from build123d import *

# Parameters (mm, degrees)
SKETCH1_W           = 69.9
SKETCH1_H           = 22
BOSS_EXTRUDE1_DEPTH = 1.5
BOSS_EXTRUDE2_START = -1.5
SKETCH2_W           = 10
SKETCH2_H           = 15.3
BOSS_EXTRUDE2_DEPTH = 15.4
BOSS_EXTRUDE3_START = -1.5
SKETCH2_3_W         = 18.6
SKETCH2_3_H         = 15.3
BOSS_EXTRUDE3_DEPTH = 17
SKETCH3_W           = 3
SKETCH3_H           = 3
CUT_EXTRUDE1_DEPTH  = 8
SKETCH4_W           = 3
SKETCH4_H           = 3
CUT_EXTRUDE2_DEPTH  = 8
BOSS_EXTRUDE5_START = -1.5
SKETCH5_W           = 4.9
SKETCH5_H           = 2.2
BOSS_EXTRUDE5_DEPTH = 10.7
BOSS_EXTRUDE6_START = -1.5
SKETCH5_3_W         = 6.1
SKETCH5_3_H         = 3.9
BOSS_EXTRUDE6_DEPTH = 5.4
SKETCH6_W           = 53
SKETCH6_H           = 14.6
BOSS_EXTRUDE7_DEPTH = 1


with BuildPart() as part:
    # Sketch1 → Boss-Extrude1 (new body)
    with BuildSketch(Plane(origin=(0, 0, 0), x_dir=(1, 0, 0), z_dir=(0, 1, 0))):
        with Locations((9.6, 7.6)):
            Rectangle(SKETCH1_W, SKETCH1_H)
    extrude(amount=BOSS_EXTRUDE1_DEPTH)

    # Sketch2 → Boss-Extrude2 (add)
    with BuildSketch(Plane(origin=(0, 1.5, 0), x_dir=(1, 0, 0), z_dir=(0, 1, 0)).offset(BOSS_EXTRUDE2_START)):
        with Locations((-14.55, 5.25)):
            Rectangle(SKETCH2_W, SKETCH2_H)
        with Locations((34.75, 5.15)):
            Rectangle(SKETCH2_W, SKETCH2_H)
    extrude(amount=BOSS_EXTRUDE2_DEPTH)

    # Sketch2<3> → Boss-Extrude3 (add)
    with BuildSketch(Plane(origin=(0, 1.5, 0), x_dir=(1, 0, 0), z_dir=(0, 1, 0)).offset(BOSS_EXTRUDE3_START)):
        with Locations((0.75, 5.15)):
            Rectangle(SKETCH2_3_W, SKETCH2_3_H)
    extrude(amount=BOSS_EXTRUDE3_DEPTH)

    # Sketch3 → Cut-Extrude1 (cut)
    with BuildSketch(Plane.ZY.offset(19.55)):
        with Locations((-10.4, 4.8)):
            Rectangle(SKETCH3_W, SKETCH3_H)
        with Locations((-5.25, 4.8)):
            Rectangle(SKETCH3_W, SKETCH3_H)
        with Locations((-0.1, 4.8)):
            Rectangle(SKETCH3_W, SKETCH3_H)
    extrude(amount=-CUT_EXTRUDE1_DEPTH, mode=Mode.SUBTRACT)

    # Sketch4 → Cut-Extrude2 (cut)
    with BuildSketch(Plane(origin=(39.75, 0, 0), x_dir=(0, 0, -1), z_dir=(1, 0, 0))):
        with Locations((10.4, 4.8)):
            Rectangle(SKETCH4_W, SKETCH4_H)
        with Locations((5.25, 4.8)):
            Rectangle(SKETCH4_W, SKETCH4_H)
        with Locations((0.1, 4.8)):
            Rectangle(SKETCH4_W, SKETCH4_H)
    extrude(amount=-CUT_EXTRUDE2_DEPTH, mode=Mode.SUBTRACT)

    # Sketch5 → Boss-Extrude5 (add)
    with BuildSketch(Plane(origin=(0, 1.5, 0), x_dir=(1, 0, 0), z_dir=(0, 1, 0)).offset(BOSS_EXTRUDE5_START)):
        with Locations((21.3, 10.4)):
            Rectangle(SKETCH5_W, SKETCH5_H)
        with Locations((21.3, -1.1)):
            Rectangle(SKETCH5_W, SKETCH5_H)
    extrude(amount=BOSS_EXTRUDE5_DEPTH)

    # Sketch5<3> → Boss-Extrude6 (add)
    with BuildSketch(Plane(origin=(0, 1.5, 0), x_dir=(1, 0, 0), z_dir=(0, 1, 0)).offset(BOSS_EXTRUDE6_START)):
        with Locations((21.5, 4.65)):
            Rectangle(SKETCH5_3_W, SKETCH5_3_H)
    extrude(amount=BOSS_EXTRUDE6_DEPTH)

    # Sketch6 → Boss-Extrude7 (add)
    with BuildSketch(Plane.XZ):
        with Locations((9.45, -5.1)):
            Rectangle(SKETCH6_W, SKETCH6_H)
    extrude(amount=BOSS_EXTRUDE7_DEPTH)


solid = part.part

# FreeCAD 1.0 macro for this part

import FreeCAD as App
import Part
import Sketcher

V = App.Vector
Q = App.Units.Quantity


def add_polygon(sketch, points):
    """Adds a closed chain of lines whose ends are joined by coincident constraints."""
    first, n = sketch.GeometryCount, len(points)
    for a, b in zip(points, points[1:] + points[:1]):
        sketch.addGeometry(Part.LineSegment(App.Vector(*a, 0), App.Vector(*b, 0)), False)
    for i in range(n):
        sketch.addConstraint(Sketcher.Constraint("Coincident", first + i, 2, first + (i + 1) % n, 1))

doc = App.newDocument("Part")
body = doc.addObject("PartDesign::Body", "Body")

# Sketch on XZ plane
sketch1 = body.newObject("Sketcher::SketchObject", "Sketch")
sketch1.AttachmentSupport = (doc.getObject("XZ_Plane"), [""])
sketch1.MapMode = "FlatFace"
add_polygon(sketch1, [(-25.35, -18.6), (-25.35, 3.4), (44.55, 3.4), (44.55, -18.6)])  # lines 0-3
sketch1.addConstraint(Sketcher.Constraint("Vertical", 0))
sketch1.addConstraint(Sketcher.Constraint("Horizontal", 1))
sketch1.addConstraint(Sketcher.Constraint("Vertical", 2))
sketch1.addConstraint(Sketcher.Constraint("Horizontal", 3))
sketch1.addConstraint(Sketcher.Constraint("DistanceY", 0, 1, 0, 2, Q("22 mm")))
sketch1.addConstraint(Sketcher.Constraint("DistanceX", 1, 1, 1, 2, Q("69.9 mm")))
sketch1.addConstraint(Sketcher.Constraint("DistanceY", -1, 1, 0, 2, Q("3.4 mm")))
sketch1.addConstraint(Sketcher.Constraint("DistanceX", 0, 2, -1, 1, Q("25.35 mm")))
pad1 = body.newObject("PartDesign::Pad", "Pad")
pad1.Profile = sketch1
pad1.Length = 1.5
pad1.Reversed = True

# Sketch on XZ plane
sketch2 = body.newObject("Sketcher::SketchObject", "Sketch001")
sketch2.AttachmentSupport = (doc.getObject("XZ_Plane"), [""])
sketch2.MapMode = "FlatFace"
add_polygon(sketch2, [(-19.55, -12.9), (-19.55, 2.4), (-9.55, 2.4), (-9.55, -12.9)])  # lines 0-3
add_polygon(sketch2, [(29.75, -12.8), (29.75, 2.5), (39.75, 2.5), (39.75, -12.8)])  # lines 4-7
sketch2.addConstraint(Sketcher.Constraint("Vertical", 0))
sketch2.addConstraint(Sketcher.Constraint("Horizontal", 1))
sketch2.addConstraint(Sketcher.Constraint("Vertical", 2))
sketch2.addConstraint(Sketcher.Constraint("Horizontal", 3))
sketch2.addConstraint(Sketcher.Constraint("Vertical", 4))
sketch2.addConstraint(Sketcher.Constraint("Horizontal", 5))
sketch2.addConstraint(Sketcher.Constraint("Vertical", 6))
sketch2.addConstraint(Sketcher.Constraint("Horizontal", 7))
sketch2.addConstraint(Sketcher.Constraint("Equal", 3, 5))
sketch2.addConstraint(Sketcher.Constraint("Equal", 2, 4))
sketch2.addConstraint(Sketcher.Constraint("DistanceX", 1, 1, 1, 2, Q("10 mm")))
sketch2.addConstraint(Sketcher.Constraint("DistanceY", 0, 1, 0, 2, Q("15.3 mm")))
sketch2.addConstraint(Sketcher.Constraint("DistanceY", -1, 1, 0, 2, Q("2.4 mm")))
sketch2.addConstraint(Sketcher.Constraint("DistanceY", -1, 1, 4, 2, Q("2.5 mm")))
sketch2.addConstraint(Sketcher.Constraint("DistanceX", 1, 2, 4, 2, Q("39.3 mm")))
sketch2.addConstraint(Sketcher.Constraint("DistanceX", 0, 2, -1, 1, Q("19.55 mm")))
pad2 = body.newObject("PartDesign::Pad", "Pad001")
pad2.Profile = sketch2
pad2.Length = 15.4
pad2.Reversed = True

# Sketch on XZ plane
sketch3 = body.newObject("Sketcher::SketchObject", "Sketch002")
sketch3.AttachmentSupport = (doc.getObject("XZ_Plane"), [""])
sketch3.MapMode = "FlatFace"
add_polygon(sketch3, [(-8.55, -12.8), (-8.55, 2.5), (10.05, 2.5), (10.05, -12.8)])  # lines 0-3
sketch3.addConstraint(Sketcher.Constraint("Vertical", 0))
sketch3.addConstraint(Sketcher.Constraint("Horizontal", 1))
sketch3.addConstraint(Sketcher.Constraint("Vertical", 2))
sketch3.addConstraint(Sketcher.Constraint("Horizontal", 3))
sketch3.addConstraint(Sketcher.Constraint("DistanceX", 1, 1, 1, 2, Q("18.6 mm")))
sketch3.addConstraint(Sketcher.Constraint("DistanceY", 0, 1, 0, 2, Q("15.3 mm")))
sketch3.addConstraint(Sketcher.Constraint("DistanceY", -1, 1, 0, 2, Q("2.5 mm")))
sketch3.addConstraint(Sketcher.Constraint("DistanceX", 0, 2, -1, 1, Q("8.55 mm")))
pad3 = body.newObject("PartDesign::Pad", "Pad002")
pad3.Profile = sketch3
pad3.Length = 17
pad3.Reversed = True

# Sketch on YZ plane
sketch4 = body.newObject("Sketcher::SketchObject", "Sketch003")
sketch4.AttachmentSupport = (doc.getObject("YZ_Plane"), [""])
sketch4.MapMode = "FlatFace"
sketch4.AttachmentOffset = App.Placement(V(0, 0, -19.55), App.Rotation())
add_polygon(sketch4, [(6.3, -11.9), (3.3, -11.9), (3.3, -8.9), (6.3, -8.9)])  # lines 0-3
add_polygon(sketch4, [(6.3, -6.75), (3.3, -6.75), (3.3, -3.75), (6.3, -3.75)])  # lines 4-7
add_polygon(sketch4, [(6.3, -1.6), (3.3, -1.6), (3.3, 1.4), (6.3, 1.4)])  # lines 8-11
sketch4.addConstraint(Sketcher.Constraint("Horizontal", 0))
sketch4.addConstraint(Sketcher.Constraint("Vertical", 1))
sketch4.addConstraint(Sketcher.Constraint("Horizontal", 2))
sketch4.addConstraint(Sketcher.Constraint("Vertical", 3))
sketch4.addConstraint(Sketcher.Constraint("Horizontal", 4))
sketch4.addConstraint(Sketcher.Constraint("Vertical", 5))
sketch4.addConstraint(Sketcher.Constraint("Horizontal", 6))
sketch4.addConstraint(Sketcher.Constraint("Vertical", 7))
sketch4.addConstraint(Sketcher.Constraint("Horizontal", 8))
sketch4.addConstraint(Sketcher.Constraint("Vertical", 9))
sketch4.addConstraint(Sketcher.Constraint("Horizontal", 10))
sketch4.addConstraint(Sketcher.Constraint("Vertical", 11))
sketch4.addConstraint(Sketcher.Constraint("Vertical", 1, 2, 4, 2))
sketch4.addConstraint(Sketcher.Constraint("Vertical", 3, 2, 6, 2))
sketch4.addConstraint(Sketcher.Constraint("Vertical", 5, 2, 8, 2))
sketch4.addConstraint(Sketcher.Constraint("Vertical", 7, 2, 10, 2))
sketch4.addConstraint(Sketcher.Constraint("Equal", 10, 1))
sketch4.addConstraint(Sketcher.Constraint("Equal", 3, 5))
sketch4.addConstraint(Sketcher.Constraint("Equal", 7, 9))
sketch4.addConstraint(Sketcher.Constraint("DistanceX", 0, 2, 0, 1, Q("3 mm")))
sketch4.addConstraint(Sketcher.Constraint("DistanceX", -1, 1, 0, 2, Q("3.3 mm")))
sketch4.addConstraint(Sketcher.Constraint("DistanceY", 0, 2, -1, 1, Q("11.9 mm")))
sketch4.addConstraint(Sketcher.Constraint("DistanceY", 8, 2, -1, 1, Q("1.6 mm")))
sketch4.addConstraint(Sketcher.Constraint("DistanceY", 4, 2, -1, 1, Q("6.75 mm")))
pocket1 = body.newObject("PartDesign::Pocket", "Pocket")
pocket1.Profile = sketch4
pocket1.Length = 8
pocket1.Reversed = True

# Sketch on YZ plane
sketch5 = body.newObject("Sketcher::SketchObject", "Sketch004")
sketch5.AttachmentSupport = (doc.getObject("YZ_Plane"), [""])
sketch5.MapMode = "FlatFace"
sketch5.AttachmentOffset = App.Placement(V(0, 0, 39.75), App.Rotation())
add_polygon(sketch5, [(6.3, -8.9), (3.3, -8.9), (3.3, -11.9), (6.3, -11.9)])  # lines 0-3
add_polygon(sketch5, [(6.3, -3.75), (3.3, -3.75), (3.3, -6.75), (6.3, -6.75)])  # lines 4-7
add_polygon(sketch5, [(6.3, 1.4), (3.3, 1.4), (3.3, -1.6), (6.3, -1.6)])  # lines 8-11
sketch5.addConstraint(Sketcher.Constraint("Horizontal", 0))
sketch5.addConstraint(Sketcher.Constraint("Vertical", 1))
sketch5.addConstraint(Sketcher.Constraint("Horizontal", 2))
sketch5.addConstraint(Sketcher.Constraint("Vertical", 3))
sketch5.addConstraint(Sketcher.Constraint("Horizontal", 4))
sketch5.addConstraint(Sketcher.Constraint("Vertical", 5))
sketch5.addConstraint(Sketcher.Constraint("Horizontal", 6))
sketch5.addConstraint(Sketcher.Constraint("Vertical", 7))
sketch5.addConstraint(Sketcher.Constraint("Horizontal", 8))
sketch5.addConstraint(Sketcher.Constraint("Vertical", 9))
sketch5.addConstraint(Sketcher.Constraint("Horizontal", 10))
sketch5.addConstraint(Sketcher.Constraint("Vertical", 11))
sketch5.addConstraint(Sketcher.Constraint("Vertical", 1, 2, 4, 2))
sketch5.addConstraint(Sketcher.Constraint("Vertical", 3, 2, 6, 2))
sketch5.addConstraint(Sketcher.Constraint("Vertical", 5, 2, 8, 2))
sketch5.addConstraint(Sketcher.Constraint("Vertical", 7, 2, 10, 2))
sketch5.addConstraint(Sketcher.Constraint("Equal", 10, 1))
sketch5.addConstraint(Sketcher.Constraint("Equal", 3, 5))
sketch5.addConstraint(Sketcher.Constraint("Equal", 7, 9))
sketch5.addConstraint(Sketcher.Constraint("DistanceX", 0, 2, 0, 1, Q("3 mm")))
sketch5.addConstraint(Sketcher.Constraint("DistanceX", -1, 1, 0, 2, Q("3.3 mm")))
sketch5.addConstraint(Sketcher.Constraint("DistanceY", 0, 2, -1, 1, Q("8.9 mm")))
sketch5.addConstraint(Sketcher.Constraint("DistanceY", -1, 1, 8, 2, Q("1.4 mm")))
sketch5.addConstraint(Sketcher.Constraint("DistanceY", 4, 2, -1, 1, Q("3.75 mm")))
pocket2 = body.newObject("PartDesign::Pocket", "Pocket001")
pocket2.Profile = sketch5
pocket2.Length = 8

# Sketch on XZ plane
sketch6 = body.newObject("Sketcher::SketchObject", "Sketch005")
sketch6.AttachmentSupport = (doc.getObject("XZ_Plane"), [""])
sketch6.MapMode = "FlatFace"
add_polygon(sketch6, [(18.85, -11.5), (18.85, -9.3), (23.75, -9.3), (23.75, -11.5)])  # lines 0-3
add_polygon(sketch6, [(18.85, 0), (18.85, 2.2), (23.75, 2.2), (23.75, 0)])  # lines 4-7
sketch6.addConstraint(Sketcher.Constraint("Vertical", 0))
sketch6.addConstraint(Sketcher.Constraint("Horizontal", 1))
sketch6.addConstraint(Sketcher.Constraint("Vertical", 2))
sketch6.addConstraint(Sketcher.Constraint("Horizontal", 3))
sketch6.addConstraint(Sketcher.Constraint("Vertical", 4))
sketch6.addConstraint(Sketcher.Constraint("Horizontal", 5))
sketch6.addConstraint(Sketcher.Constraint("Vertical", 6))
sketch6.addConstraint(Sketcher.Constraint("Horizontal", 7))
sketch6.addConstraint(Sketcher.Constraint("PointOnObject", 6, 2, -1))
sketch6.addConstraint(Sketcher.Constraint("Vertical", 3, 2, 4, 2))
sketch6.addConstraint(Sketcher.Constraint("Vertical", 2, 2, 5, 2))
sketch6.addConstraint(Sketcher.Constraint("Equal", 2, 4))
sketch6.addConstraint(Sketcher.Constraint("DistanceX", 1, 1, 1, 2, Q("4.9 mm")))
sketch6.addConstraint(Sketcher.Constraint("DistanceY", 0, 1, 0, 2, Q("2.2 mm")))
sketch6.addConstraint(Sketcher.Constraint("DistanceY", 0, 2, -1, 1, Q("9.3 mm")))
sketch6.addConstraint(Sketcher.Constraint("DistanceX", -1, 1, 0, 2, Q("18.85 mm")))
pad4 = body.newObject("PartDesign::Pad", "Pad003")
pad4.Profile = sketch6
pad4.Length = 10.7
pad4.Reversed = True

# Sketch on XZ plane
sketch7 = body.newObject("Sketcher::SketchObject", "Sketch006")
sketch7.AttachmentSupport = (doc.getObject("XZ_Plane"), [""])
sketch7.MapMode = "FlatFace"
add_polygon(sketch7, [(18.45, -6.6), (18.45, -2.7), (24.55, -2.7), (24.55, -6.6)])  # lines 0-3
sketch7.addConstraint(Sketcher.Constraint("Vertical", 0))
sketch7.addConstraint(Sketcher.Constraint("Horizontal", 1))
sketch7.addConstraint(Sketcher.Constraint("Vertical", 2))
sketch7.addConstraint(Sketcher.Constraint("Horizontal", 3))
sketch7.addConstraint(Sketcher.Constraint("DistanceX", 1, 1, 1, 2, Q("6.1 mm")))
sketch7.addConstraint(Sketcher.Constraint("DistanceY", 0, 1, 0, 2, Q("3.9 mm")))
sketch7.addConstraint(Sketcher.Constraint("DistanceY", 0, 2, -1, 1, Q("2.7 mm")))
sketch7.addConstraint(Sketcher.Constraint("DistanceX", -1, 1, 0, 2, Q("18.45 mm")))
pad5 = body.newObject("PartDesign::Pad", "Pad004")
pad5.Profile = sketch7
pad5.Length = 5.4
pad5.Reversed = True

# Sketch on XZ plane
sketch8 = body.newObject("Sketcher::SketchObject", "Sketch007")
sketch8.AttachmentSupport = (doc.getObject("XZ_Plane"), [""])
sketch8.MapMode = "FlatFace"
add_polygon(sketch8, [(-17.05, 2.2), (-17.05, -12.4), (35.95, -12.4), (35.95, 2.2)])  # lines 0-3
sketch8.addConstraint(Sketcher.Constraint("Vertical", 0))
sketch8.addConstraint(Sketcher.Constraint("Horizontal", 1))
sketch8.addConstraint(Sketcher.Constraint("Vertical", 2))
sketch8.addConstraint(Sketcher.Constraint("Horizontal", 3))
sketch8.addConstraint(Sketcher.Constraint("DistanceX", 1, 1, 1, 2, Q("53 mm")))
sketch8.addConstraint(Sketcher.Constraint("DistanceY", 0, 2, 0, 1, Q("14.6 mm")))
sketch8.addConstraint(Sketcher.Constraint("DistanceY", 0, 2, -1, 1, Q("12.4 mm")))
sketch8.addConstraint(Sketcher.Constraint("DistanceX", 0, 2, -1, 1, Q("17.05 mm")))
pad6 = body.newObject("PartDesign::Pad", "Pad005")
pad6.Profile = sketch8
pad6.Length = 1

doc.recompute()
